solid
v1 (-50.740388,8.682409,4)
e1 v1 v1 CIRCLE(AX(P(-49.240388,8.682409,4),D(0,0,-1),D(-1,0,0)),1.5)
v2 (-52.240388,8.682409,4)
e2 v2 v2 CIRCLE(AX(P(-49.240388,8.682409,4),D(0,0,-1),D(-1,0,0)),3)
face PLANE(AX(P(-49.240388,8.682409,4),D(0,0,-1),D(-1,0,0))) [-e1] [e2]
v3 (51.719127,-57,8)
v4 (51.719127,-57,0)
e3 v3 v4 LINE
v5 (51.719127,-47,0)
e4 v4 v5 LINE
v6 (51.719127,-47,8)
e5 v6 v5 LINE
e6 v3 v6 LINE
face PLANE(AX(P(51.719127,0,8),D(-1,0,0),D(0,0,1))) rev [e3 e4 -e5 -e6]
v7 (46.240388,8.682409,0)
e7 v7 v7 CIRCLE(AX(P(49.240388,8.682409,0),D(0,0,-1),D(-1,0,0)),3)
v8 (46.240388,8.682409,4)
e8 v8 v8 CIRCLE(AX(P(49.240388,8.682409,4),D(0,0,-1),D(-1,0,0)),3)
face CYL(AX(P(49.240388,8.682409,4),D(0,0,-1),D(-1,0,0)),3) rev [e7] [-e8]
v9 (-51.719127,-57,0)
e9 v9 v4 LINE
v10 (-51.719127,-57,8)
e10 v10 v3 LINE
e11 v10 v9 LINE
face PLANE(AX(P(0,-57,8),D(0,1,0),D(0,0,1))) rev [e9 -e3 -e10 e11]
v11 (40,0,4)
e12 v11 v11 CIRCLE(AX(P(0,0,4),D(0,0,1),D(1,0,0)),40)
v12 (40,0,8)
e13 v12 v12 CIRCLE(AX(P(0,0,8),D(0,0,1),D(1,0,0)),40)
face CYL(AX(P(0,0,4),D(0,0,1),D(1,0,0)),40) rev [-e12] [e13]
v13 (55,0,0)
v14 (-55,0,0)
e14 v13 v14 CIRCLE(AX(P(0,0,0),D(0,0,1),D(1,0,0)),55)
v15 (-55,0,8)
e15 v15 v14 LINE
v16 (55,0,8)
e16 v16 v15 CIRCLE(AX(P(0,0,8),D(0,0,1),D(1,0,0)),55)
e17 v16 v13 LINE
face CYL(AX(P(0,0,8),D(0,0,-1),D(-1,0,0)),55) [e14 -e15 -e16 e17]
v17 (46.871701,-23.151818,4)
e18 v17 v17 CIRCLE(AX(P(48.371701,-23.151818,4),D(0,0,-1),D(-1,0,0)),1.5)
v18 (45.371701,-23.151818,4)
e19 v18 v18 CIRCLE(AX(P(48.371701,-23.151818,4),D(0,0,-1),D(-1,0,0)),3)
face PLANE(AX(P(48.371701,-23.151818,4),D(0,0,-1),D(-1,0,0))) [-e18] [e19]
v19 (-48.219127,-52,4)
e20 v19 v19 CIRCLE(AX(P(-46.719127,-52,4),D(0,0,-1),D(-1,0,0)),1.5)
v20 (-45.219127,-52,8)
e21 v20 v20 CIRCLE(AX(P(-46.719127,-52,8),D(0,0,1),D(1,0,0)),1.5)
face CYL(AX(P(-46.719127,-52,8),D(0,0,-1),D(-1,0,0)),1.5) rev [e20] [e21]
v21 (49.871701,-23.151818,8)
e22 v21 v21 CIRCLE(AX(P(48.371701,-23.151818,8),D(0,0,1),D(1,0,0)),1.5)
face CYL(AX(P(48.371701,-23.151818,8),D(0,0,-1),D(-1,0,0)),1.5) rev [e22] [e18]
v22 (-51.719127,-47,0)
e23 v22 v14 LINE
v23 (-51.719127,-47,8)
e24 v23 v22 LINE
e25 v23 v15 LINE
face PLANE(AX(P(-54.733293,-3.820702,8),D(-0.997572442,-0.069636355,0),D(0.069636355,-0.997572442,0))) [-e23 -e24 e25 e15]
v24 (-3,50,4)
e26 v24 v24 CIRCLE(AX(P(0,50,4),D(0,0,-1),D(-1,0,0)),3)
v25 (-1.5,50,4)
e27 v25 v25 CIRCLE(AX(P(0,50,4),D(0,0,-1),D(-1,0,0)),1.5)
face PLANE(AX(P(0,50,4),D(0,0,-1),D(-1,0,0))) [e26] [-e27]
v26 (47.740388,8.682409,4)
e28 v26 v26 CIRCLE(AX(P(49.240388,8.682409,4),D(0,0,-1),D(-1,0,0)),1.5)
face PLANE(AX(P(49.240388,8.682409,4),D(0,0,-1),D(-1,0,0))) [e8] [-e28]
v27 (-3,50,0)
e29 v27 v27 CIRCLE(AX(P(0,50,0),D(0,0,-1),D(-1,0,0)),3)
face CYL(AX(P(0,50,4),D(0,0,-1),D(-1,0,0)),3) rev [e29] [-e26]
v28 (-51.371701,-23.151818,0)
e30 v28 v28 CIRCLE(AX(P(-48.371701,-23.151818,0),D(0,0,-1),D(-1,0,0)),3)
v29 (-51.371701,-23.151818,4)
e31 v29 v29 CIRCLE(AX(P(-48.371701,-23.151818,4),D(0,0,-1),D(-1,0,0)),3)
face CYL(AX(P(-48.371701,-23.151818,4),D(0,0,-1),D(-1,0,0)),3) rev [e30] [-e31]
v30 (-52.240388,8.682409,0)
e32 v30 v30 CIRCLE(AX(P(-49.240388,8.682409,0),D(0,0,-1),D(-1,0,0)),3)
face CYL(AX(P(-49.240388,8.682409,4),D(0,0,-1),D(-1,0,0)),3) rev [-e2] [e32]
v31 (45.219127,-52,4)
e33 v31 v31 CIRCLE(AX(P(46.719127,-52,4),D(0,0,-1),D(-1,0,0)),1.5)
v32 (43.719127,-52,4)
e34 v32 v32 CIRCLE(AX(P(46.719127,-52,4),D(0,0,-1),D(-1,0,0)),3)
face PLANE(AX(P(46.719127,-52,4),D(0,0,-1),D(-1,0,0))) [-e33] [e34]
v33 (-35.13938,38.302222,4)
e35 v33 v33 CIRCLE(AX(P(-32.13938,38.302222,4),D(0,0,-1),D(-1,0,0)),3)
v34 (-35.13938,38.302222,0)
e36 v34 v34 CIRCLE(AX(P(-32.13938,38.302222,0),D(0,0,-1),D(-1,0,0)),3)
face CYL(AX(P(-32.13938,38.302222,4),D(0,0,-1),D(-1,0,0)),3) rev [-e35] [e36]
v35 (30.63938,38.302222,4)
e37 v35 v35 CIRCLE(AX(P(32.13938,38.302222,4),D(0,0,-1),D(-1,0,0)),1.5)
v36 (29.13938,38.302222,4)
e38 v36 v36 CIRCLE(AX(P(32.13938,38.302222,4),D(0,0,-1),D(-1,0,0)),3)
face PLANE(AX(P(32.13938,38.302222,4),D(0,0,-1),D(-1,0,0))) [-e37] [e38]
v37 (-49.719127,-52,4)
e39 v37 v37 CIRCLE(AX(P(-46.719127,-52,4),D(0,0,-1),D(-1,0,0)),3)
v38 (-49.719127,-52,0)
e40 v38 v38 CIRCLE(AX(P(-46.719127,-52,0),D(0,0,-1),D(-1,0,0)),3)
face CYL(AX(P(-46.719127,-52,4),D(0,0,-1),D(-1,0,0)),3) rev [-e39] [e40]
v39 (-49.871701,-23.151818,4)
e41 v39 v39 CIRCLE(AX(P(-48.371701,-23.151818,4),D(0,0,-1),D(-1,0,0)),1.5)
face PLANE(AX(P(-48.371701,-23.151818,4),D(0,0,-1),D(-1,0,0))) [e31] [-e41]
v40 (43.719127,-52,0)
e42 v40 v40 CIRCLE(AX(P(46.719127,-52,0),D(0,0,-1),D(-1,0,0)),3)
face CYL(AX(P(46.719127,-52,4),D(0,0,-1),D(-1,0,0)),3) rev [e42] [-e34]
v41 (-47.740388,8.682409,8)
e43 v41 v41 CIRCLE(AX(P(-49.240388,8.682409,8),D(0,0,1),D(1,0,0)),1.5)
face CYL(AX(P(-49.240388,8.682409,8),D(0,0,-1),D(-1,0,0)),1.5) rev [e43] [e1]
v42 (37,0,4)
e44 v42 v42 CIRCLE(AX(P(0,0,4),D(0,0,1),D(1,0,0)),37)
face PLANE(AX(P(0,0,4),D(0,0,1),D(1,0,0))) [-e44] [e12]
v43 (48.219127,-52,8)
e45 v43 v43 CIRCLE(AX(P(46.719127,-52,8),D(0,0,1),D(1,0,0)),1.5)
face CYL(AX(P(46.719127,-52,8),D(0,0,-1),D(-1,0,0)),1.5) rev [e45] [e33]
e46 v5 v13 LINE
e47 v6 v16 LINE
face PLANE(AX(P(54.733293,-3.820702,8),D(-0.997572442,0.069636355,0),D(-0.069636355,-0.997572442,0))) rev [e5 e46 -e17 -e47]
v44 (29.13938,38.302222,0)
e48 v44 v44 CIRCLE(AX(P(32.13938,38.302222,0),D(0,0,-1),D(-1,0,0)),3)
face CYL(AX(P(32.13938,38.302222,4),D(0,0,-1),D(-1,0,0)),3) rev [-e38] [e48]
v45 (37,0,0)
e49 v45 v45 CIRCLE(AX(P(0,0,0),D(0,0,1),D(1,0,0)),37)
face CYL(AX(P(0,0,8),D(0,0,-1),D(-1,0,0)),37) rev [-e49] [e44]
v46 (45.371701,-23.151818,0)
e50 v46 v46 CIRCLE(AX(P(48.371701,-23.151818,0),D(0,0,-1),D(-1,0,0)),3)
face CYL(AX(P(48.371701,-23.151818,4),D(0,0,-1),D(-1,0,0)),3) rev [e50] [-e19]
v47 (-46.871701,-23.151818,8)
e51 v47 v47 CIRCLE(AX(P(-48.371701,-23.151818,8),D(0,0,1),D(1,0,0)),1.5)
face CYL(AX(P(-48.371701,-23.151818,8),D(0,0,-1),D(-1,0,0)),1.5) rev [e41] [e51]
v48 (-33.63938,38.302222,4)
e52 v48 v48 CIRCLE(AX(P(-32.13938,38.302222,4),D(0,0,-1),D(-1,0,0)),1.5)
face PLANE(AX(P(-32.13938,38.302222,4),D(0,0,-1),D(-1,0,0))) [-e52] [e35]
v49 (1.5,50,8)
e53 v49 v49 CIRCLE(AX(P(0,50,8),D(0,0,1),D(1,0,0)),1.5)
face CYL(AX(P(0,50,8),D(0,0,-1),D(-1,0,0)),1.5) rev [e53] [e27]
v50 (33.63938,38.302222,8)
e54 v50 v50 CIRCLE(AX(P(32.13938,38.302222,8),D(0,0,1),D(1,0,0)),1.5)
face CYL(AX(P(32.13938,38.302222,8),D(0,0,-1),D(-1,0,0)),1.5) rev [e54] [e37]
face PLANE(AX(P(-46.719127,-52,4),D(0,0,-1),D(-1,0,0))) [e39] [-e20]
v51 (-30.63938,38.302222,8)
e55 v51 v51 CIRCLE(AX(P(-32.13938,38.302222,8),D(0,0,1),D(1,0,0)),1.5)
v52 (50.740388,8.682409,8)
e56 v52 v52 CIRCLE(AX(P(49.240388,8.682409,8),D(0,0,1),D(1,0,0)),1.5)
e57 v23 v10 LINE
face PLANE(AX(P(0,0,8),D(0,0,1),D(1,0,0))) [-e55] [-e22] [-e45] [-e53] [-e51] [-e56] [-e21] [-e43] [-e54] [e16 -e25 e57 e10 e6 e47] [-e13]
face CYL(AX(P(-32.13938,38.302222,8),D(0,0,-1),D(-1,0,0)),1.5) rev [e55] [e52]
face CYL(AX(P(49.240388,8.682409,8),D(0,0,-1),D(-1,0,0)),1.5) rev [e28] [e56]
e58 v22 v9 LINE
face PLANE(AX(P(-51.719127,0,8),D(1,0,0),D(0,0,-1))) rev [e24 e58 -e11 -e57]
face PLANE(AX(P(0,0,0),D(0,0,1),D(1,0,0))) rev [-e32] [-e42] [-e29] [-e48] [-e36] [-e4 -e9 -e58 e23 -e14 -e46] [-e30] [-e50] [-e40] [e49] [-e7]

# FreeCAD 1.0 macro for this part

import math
import FreeCAD as App
import Part
import Sketcher

V = App.Vector

doc = App.newDocument("Part")
body = doc.addObject("PartDesign::Body", "Body")

# Sketch on XY plane
sketch1 = doc.addObject("Sketcher::SketchObject", "Sketch")
body.addObject(sketch1)
sketch1.AttachmentSupport = (doc.XY_Plane, [""])
sketch1.MapMode = "FlatFace"
sketch1.addGeometry(Part.LineSegment(V(51.7, -47, 0), V(55, 0, 0)), False)
sketch1.addGeometry(Part.ArcOfCircle(Part.Circle(V(0, 0, 0), V(0, 0, 1), 55), math.radians(0), math.radians(180)), False)
sketch1.addGeometry(Part.LineSegment(V(-55, 0, 0), V(-51.7, -47, 0)), False)
sketch1.addGeometry(Part.LineSegment(V(-51.7, -47, 0), V(-51.7, -57, 0)), False)
sketch1.addGeometry(Part.LineSegment(V(-51.7, -57, 0), V(51.7, -57, 0)), False)
sketch1.addGeometry(Part.LineSegment(V(51.7, -57, 0), V(51.7, -47, 0)), False)
sketch1.addGeometry(Part.Circle(V(-46.7, -52, 0), V(0, 0, 1), 1.5), False)
sketch1.addGeometry(Part.Circle(V(-48.4, -23.2, 0), V(0, 0, 1), 1.5), False)
sketch1.addGeometry(Part.Circle(V(46.7, -52, 0), V(0, 0, 1), 1.5), False)
sketch1.addGeometry(Part.Circle(V(48.4, -23.2, 0), V(0, 0, 1), 1.5), False)
sketch1.addGeometry(Part.Circle(V(-49.2, 8.7, 0), V(0, 0, 1), 1.5), False)
sketch1.addGeometry(Part.Circle(V(-32.1, 38.3, 0), V(0, 0, 1), 1.5), False)
sketch1.addGeometry(Part.Circle(V(49.2, 8.7, 0), V(0, 0, 1), 1.5), False)
sketch1.addGeometry(Part.Circle(V(0, 50, 0), V(0, 0, 1), 1.5), False)
sketch1.addGeometry(Part.Circle(V(32.1, 38.3, 0), V(0, 0, 1), 1.5), False)
sketch1.addGeometry(Part.Circle(V(0, 0, 0), V(0, 0, 1), 37), False)
sketch1.addConstraint(Sketcher.Constraint("Coincident", 0, 2, 1, 1))
sketch1.addConstraint(Sketcher.Constraint("Coincident", 1, 2, 2, 1))
sketch1.addConstraint(Sketcher.Constraint("Coincident", 2, 2, 3, 1))
sketch1.addConstraint(Sketcher.Constraint("Coincident", 3, 2, 4, 1))
sketch1.addConstraint(Sketcher.Constraint("Coincident", 4, 2, 5, 1))
sketch1.addConstraint(Sketcher.Constraint("Coincident", 5, 2, 0, 1))
sketch1.addConstraint(Sketcher.Constraint("Vertical", 3))
sketch1.addConstraint(Sketcher.Constraint("Horizontal", 4))
sketch1.addConstraint(Sketcher.Constraint("Vertical", 5))
sketch1.addConstraint(Sketcher.Constraint("Coincident", 1, 3, -1, 1))
sketch1.addConstraint(Sketcher.Constraint("Coincident", 15, 3, -1, 1))
sketch1.addConstraint(Sketcher.Constraint("Equal", 6, 7))
sketch1.addConstraint(Sketcher.Constraint("Equal", 7, 8))
sketch1.addConstraint(Sketcher.Constraint("Equal", 8, 9))
sketch1.addConstraint(Sketcher.Constraint("Equal", 9, 10))
sketch1.addConstraint(Sketcher.Constraint("Equal", 10, 11))
sketch1.addConstraint(Sketcher.Constraint("Equal", 11, 12))
sketch1.addConstraint(Sketcher.Constraint("Equal", 12, 13))
sketch1.addConstraint(Sketcher.Constraint("Equal", 13, 14))
sketch1.addConstraint(Sketcher.Constraint("Symmetric", 6, 3, 8, 3, -2))
sketch1.addConstraint(Sketcher.Constraint("Symmetric", 7, 3, 9, 3, -2))
sketch1.addConstraint(Sketcher.Constraint("Symmetric", 10, 3, 12, 3, -2))
sketch1.addConstraint(Sketcher.Constraint("Symmetric", 11, 3, 14, 3, -2))
sketch1.addConstraint(Sketcher.Constraint("Symmetric", 2, 2, 5, 2, -2))
sketch1.addConstraint(Sketcher.Constraint("PointOnObject", 13, 3, -2))
sketch1.addConstraint(Sketcher.Constraint("PointOnObject", 0, 2, -1))
sketch1.addConstraint(Sketcher.Constraint("PointOnObject", 1, 2, -1))
sketch1.addConstraint(Sketcher.Constraint("Diameter", 6, 3.0))
sketch1.addConstraint(Sketcher.Constraint("Diameter", 15, 74.0))
sketch1.addConstraint(Sketcher.Constraint("Radius", 1, 55.0))
sketch1.addConstraint(Sketcher.Constraint("DistanceY", 3, 2, 3, 1, 10.0))
sketch1.addConstraint(Sketcher.Constraint("DistanceY", 6, 3, -1, 1, 52.0))
sketch1.addConstraint(Sketcher.Constraint("DistanceY", -1, 1, 13, 3, 50.0))
sketch1.addConstraint(Sketcher.Constraint("DistanceY", 2, 2, -1, 1, 47.0))
sketch1.addConstraint(Sketcher.Constraint("DistanceX", 2, 2, 6, 3, 5.0))
sketch1.addConstraint(Sketcher.Constraint("DistanceX", 7, 3, -1, 1, 48.371701))
sketch1.addConstraint(Sketcher.Constraint("DistanceX", 4, 1, 4, 2, 103.438254))
sketch1.addConstraint(Sketcher.Constraint("DistanceY", 7, 3, -1, 1, 23.151818))
sketch1.addConstraint(Sketcher.Constraint("DistanceY", -1, 1, 10, 3, 8.682409))
sketch1.addConstraint(Sketcher.Constraint("DistanceX", 11, 3, -1, 1, 32.13938))
sketch1.addConstraint(Sketcher.Constraint("DistanceX", 10, 3, 6, 3, 2.521261))
sketch1.addConstraint(Sketcher.Constraint("DistanceY", 7, 3, 11, 3, 61.45404))
pad1 = doc.addObject("PartDesign::Pad", "Pad")
body.addObject(pad1)
pad1.Profile = sketch1
pad1.Length = 8

# Sketch on XY plane
sketch2 = doc.addObject("Sketcher::SketchObject", "Sketch001")
body.addObject(sketch2)
sketch2.AttachmentSupport = (doc.XY_Plane, [""])
sketch2.MapMode = "FlatFace"
sketch2.AttachmentOffset = App.Placement(V(0, 0, 8), App.Rotation())
sketch2.addGeometry(Part.Circle(V(0, 0, 0), V(0, 0, 1), 40), False)
sketch2.addConstraint(Sketcher.Constraint("Coincident", 0, 3, -1, 1))
sketch2.addConstraint(Sketcher.Constraint("Diameter", 0, 80.0))
pocket1 = doc.addObject("PartDesign::Pocket", "Pocket")
body.addObject(pocket1)
pocket1.Profile = sketch2
pocket1.Length = 4

# Sketch on XY plane
sketch3 = doc.addObject("Sketcher::SketchObject", "Sketch002")
body.addObject(sketch3)
sketch3.AttachmentSupport = (doc.XY_Plane, [""])
sketch3.MapMode = "FlatFace"
sketch3.addGeometry(Part.Circle(V(46.7, -52, 0), V(0, 0, 1), 3), False)
sketch3.addGeometry(Part.Circle(V(46.7, -52, 0), V(0, 0, 1), 1.5), False)
sketch3.addGeometry(Part.Circle(V(48.4, -23.2, 0), V(0, 0, 1), 3), False)
sketch3.addGeometry(Part.Circle(V(48.4, -23.2, 0), V(0, 0, 1), 1.5), False)
sketch3.addGeometry(Part.Circle(V(49.2, 8.7, 0), V(0, 0, 1), 3), False)
sketch3.addGeometry(Part.Circle(V(49.2, 8.7, 0), V(0, 0, 1), 1.5), False)
sketch3.addGeometry(Part.Circle(V(32.1, 38.3, 0), V(0, 0, 1), 3), False)
sketch3.addGeometry(Part.Circle(V(32.1, 38.3, 0), V(0, 0, 1), 1.5), False)
sketch3.addGeometry(Part.Circle(V(0, 50, 0), V(0, 0, 1), 3), False)
sketch3.addGeometry(Part.Circle(V(0, 50, 0), V(0, 0, 1), 1.5), False)
sketch3.addGeometry(Part.Circle(V(-32.1, 38.3, 0), V(0, 0, 1), 3), False)
sketch3.addGeometry(Part.Circle(V(-32.1, 38.3, 0), V(0, 0, 1), 1.5), False)
sketch3.addGeometry(Part.Circle(V(-49.2, 8.7, 0), V(0, 0, 1), 3), False)
sketch3.addGeometry(Part.Circle(V(-49.2, 8.7, 0), V(0, 0, 1), 1.5), False)
sketch3.addGeometry(Part.Circle(V(-48.4, -23.2, 0), V(0, 0, 1), 3), False)
sketch3.addGeometry(Part.Circle(V(-48.4, -23.2, 0), V(0, 0, 1), 1.5), False)
sketch3.addGeometry(Part.Circle(V(-46.7, -52, 0), V(0, 0, 1), 3), False)
sketch3.addGeometry(Part.Circle(V(-46.7, -52, 0), V(0, 0, 1), 1.5), False)
sketch3.addConstraint(Sketcher.Constraint("Coincident", 1, 3, 0, 3))
sketch3.addConstraint(Sketcher.Constraint("Coincident", 3, 3, 2, 3))
sketch3.addConstraint(Sketcher.Constraint("Coincident", 5, 3, 4, 3))
sketch3.addConstraint(Sketcher.Constraint("Coincident", 7, 3, 6, 3))
sketch3.addConstraint(Sketcher.Constraint("Coincident", 9, 3, 8, 3))
sketch3.addConstraint(Sketcher.Constraint("Coincident", 11, 3, 10, 3))
sketch3.addConstraint(Sketcher.Constraint("Coincident", 13, 3, 12, 3))
sketch3.addConstraint(Sketcher.Constraint("Coincident", 15, 3, 14, 3))
sketch3.addConstraint(Sketcher.Constraint("Coincident", 17, 3, 16, 3))
sketch3.addConstraint(Sketcher.Constraint("Equal", 0, 2))
sketch3.addConstraint(Sketcher.Constraint("Equal", 1, 3))
sketch3.addConstraint(Sketcher.Constraint("Equal", 2, 4))
sketch3.addConstraint(Sketcher.Constraint("Equal", 3, 5))
sketch3.addConstraint(Sketcher.Constraint("Equal", 4, 6))
sketch3.addConstraint(Sketcher.Constraint("Equal", 5, 7))
sketch3.addConstraint(Sketcher.Constraint("Equal", 6, 8))
sketch3.addConstraint(Sketcher.Constraint("Equal", 7, 9))
sketch3.addConstraint(Sketcher.Constraint("Equal", 8, 10))
sketch3.addConstraint(Sketcher.Constraint("Equal", 9, 11))
sketch3.addConstraint(Sketcher.Constraint("Equal", 10, 12))
sketch3.addConstraint(Sketcher.Constraint("Equal", 11, 13))
sketch3.addConstraint(Sketcher.Constraint("Equal", 12, 14))
sketch3.addConstraint(Sketcher.Constraint("Equal", 13, 15))
sketch3.addConstraint(Sketcher.Constraint("Equal", 14, 16))
sketch3.addConstraint(Sketcher.Constraint("Equal", 15, 17))
sketch3.addConstraint(Sketcher.Constraint("Symmetric", 6, 3, 10, 3, -2))
sketch3.addConstraint(Sketcher.Constraint("Symmetric", 4, 3, 12, 3, -2))
sketch3.addConstraint(Sketcher.Constraint("Symmetric", 2, 3, 14, 3, -2))
sketch3.addConstraint(Sketcher.Constraint("Symmetric", 0, 3, 16, 3, -2))
sketch3.addConstraint(Sketcher.Constraint("PointOnObject", 8, 3, -2))
sketch3.addConstraint(Sketcher.Constraint("Diameter", 0, 6.0))
sketch3.addConstraint(Sketcher.Constraint("Diameter", 1, 3.0))
sketch3.addConstraint(Sketcher.Constraint("DistanceY", 0, 3, -1, 1, 52.0))
sketch3.addConstraint(Sketcher.Constraint("DistanceY", -1, 1, 8, 3, 50.0))
sketch3.addConstraint(Sketcher.Constraint("DistanceX", -1, 1, 2, 3, 48.371701))
sketch3.addConstraint(Sketcher.Constraint("DistanceY", 2, 3, -1, 1, 23.151818))
sketch3.addConstraint(Sketcher.Constraint("DistanceY", -1, 1, 4, 3, 8.682409))
sketch3.addConstraint(Sketcher.Constraint("DistanceX", -1, 1, 6, 3, 32.13938))
sketch3.addConstraint(Sketcher.Constraint("DistanceX", 0, 3, 4, 3, 2.521261))
sketch3.addConstraint(Sketcher.Constraint("DistanceY", 2, 3, 6, 3, 61.45404))
sketch3.addConstraint(Sketcher.Constraint("DistanceX", 10, 3, 4, 3, 81.379768))
pocket2 = doc.addObject("PartDesign::Pocket", "Pocket001")
body.addObject(pocket2)
pocket2.Profile = sketch3
pocket2.Length = 4
pocket2.Reversed = True

doc.recompute()
